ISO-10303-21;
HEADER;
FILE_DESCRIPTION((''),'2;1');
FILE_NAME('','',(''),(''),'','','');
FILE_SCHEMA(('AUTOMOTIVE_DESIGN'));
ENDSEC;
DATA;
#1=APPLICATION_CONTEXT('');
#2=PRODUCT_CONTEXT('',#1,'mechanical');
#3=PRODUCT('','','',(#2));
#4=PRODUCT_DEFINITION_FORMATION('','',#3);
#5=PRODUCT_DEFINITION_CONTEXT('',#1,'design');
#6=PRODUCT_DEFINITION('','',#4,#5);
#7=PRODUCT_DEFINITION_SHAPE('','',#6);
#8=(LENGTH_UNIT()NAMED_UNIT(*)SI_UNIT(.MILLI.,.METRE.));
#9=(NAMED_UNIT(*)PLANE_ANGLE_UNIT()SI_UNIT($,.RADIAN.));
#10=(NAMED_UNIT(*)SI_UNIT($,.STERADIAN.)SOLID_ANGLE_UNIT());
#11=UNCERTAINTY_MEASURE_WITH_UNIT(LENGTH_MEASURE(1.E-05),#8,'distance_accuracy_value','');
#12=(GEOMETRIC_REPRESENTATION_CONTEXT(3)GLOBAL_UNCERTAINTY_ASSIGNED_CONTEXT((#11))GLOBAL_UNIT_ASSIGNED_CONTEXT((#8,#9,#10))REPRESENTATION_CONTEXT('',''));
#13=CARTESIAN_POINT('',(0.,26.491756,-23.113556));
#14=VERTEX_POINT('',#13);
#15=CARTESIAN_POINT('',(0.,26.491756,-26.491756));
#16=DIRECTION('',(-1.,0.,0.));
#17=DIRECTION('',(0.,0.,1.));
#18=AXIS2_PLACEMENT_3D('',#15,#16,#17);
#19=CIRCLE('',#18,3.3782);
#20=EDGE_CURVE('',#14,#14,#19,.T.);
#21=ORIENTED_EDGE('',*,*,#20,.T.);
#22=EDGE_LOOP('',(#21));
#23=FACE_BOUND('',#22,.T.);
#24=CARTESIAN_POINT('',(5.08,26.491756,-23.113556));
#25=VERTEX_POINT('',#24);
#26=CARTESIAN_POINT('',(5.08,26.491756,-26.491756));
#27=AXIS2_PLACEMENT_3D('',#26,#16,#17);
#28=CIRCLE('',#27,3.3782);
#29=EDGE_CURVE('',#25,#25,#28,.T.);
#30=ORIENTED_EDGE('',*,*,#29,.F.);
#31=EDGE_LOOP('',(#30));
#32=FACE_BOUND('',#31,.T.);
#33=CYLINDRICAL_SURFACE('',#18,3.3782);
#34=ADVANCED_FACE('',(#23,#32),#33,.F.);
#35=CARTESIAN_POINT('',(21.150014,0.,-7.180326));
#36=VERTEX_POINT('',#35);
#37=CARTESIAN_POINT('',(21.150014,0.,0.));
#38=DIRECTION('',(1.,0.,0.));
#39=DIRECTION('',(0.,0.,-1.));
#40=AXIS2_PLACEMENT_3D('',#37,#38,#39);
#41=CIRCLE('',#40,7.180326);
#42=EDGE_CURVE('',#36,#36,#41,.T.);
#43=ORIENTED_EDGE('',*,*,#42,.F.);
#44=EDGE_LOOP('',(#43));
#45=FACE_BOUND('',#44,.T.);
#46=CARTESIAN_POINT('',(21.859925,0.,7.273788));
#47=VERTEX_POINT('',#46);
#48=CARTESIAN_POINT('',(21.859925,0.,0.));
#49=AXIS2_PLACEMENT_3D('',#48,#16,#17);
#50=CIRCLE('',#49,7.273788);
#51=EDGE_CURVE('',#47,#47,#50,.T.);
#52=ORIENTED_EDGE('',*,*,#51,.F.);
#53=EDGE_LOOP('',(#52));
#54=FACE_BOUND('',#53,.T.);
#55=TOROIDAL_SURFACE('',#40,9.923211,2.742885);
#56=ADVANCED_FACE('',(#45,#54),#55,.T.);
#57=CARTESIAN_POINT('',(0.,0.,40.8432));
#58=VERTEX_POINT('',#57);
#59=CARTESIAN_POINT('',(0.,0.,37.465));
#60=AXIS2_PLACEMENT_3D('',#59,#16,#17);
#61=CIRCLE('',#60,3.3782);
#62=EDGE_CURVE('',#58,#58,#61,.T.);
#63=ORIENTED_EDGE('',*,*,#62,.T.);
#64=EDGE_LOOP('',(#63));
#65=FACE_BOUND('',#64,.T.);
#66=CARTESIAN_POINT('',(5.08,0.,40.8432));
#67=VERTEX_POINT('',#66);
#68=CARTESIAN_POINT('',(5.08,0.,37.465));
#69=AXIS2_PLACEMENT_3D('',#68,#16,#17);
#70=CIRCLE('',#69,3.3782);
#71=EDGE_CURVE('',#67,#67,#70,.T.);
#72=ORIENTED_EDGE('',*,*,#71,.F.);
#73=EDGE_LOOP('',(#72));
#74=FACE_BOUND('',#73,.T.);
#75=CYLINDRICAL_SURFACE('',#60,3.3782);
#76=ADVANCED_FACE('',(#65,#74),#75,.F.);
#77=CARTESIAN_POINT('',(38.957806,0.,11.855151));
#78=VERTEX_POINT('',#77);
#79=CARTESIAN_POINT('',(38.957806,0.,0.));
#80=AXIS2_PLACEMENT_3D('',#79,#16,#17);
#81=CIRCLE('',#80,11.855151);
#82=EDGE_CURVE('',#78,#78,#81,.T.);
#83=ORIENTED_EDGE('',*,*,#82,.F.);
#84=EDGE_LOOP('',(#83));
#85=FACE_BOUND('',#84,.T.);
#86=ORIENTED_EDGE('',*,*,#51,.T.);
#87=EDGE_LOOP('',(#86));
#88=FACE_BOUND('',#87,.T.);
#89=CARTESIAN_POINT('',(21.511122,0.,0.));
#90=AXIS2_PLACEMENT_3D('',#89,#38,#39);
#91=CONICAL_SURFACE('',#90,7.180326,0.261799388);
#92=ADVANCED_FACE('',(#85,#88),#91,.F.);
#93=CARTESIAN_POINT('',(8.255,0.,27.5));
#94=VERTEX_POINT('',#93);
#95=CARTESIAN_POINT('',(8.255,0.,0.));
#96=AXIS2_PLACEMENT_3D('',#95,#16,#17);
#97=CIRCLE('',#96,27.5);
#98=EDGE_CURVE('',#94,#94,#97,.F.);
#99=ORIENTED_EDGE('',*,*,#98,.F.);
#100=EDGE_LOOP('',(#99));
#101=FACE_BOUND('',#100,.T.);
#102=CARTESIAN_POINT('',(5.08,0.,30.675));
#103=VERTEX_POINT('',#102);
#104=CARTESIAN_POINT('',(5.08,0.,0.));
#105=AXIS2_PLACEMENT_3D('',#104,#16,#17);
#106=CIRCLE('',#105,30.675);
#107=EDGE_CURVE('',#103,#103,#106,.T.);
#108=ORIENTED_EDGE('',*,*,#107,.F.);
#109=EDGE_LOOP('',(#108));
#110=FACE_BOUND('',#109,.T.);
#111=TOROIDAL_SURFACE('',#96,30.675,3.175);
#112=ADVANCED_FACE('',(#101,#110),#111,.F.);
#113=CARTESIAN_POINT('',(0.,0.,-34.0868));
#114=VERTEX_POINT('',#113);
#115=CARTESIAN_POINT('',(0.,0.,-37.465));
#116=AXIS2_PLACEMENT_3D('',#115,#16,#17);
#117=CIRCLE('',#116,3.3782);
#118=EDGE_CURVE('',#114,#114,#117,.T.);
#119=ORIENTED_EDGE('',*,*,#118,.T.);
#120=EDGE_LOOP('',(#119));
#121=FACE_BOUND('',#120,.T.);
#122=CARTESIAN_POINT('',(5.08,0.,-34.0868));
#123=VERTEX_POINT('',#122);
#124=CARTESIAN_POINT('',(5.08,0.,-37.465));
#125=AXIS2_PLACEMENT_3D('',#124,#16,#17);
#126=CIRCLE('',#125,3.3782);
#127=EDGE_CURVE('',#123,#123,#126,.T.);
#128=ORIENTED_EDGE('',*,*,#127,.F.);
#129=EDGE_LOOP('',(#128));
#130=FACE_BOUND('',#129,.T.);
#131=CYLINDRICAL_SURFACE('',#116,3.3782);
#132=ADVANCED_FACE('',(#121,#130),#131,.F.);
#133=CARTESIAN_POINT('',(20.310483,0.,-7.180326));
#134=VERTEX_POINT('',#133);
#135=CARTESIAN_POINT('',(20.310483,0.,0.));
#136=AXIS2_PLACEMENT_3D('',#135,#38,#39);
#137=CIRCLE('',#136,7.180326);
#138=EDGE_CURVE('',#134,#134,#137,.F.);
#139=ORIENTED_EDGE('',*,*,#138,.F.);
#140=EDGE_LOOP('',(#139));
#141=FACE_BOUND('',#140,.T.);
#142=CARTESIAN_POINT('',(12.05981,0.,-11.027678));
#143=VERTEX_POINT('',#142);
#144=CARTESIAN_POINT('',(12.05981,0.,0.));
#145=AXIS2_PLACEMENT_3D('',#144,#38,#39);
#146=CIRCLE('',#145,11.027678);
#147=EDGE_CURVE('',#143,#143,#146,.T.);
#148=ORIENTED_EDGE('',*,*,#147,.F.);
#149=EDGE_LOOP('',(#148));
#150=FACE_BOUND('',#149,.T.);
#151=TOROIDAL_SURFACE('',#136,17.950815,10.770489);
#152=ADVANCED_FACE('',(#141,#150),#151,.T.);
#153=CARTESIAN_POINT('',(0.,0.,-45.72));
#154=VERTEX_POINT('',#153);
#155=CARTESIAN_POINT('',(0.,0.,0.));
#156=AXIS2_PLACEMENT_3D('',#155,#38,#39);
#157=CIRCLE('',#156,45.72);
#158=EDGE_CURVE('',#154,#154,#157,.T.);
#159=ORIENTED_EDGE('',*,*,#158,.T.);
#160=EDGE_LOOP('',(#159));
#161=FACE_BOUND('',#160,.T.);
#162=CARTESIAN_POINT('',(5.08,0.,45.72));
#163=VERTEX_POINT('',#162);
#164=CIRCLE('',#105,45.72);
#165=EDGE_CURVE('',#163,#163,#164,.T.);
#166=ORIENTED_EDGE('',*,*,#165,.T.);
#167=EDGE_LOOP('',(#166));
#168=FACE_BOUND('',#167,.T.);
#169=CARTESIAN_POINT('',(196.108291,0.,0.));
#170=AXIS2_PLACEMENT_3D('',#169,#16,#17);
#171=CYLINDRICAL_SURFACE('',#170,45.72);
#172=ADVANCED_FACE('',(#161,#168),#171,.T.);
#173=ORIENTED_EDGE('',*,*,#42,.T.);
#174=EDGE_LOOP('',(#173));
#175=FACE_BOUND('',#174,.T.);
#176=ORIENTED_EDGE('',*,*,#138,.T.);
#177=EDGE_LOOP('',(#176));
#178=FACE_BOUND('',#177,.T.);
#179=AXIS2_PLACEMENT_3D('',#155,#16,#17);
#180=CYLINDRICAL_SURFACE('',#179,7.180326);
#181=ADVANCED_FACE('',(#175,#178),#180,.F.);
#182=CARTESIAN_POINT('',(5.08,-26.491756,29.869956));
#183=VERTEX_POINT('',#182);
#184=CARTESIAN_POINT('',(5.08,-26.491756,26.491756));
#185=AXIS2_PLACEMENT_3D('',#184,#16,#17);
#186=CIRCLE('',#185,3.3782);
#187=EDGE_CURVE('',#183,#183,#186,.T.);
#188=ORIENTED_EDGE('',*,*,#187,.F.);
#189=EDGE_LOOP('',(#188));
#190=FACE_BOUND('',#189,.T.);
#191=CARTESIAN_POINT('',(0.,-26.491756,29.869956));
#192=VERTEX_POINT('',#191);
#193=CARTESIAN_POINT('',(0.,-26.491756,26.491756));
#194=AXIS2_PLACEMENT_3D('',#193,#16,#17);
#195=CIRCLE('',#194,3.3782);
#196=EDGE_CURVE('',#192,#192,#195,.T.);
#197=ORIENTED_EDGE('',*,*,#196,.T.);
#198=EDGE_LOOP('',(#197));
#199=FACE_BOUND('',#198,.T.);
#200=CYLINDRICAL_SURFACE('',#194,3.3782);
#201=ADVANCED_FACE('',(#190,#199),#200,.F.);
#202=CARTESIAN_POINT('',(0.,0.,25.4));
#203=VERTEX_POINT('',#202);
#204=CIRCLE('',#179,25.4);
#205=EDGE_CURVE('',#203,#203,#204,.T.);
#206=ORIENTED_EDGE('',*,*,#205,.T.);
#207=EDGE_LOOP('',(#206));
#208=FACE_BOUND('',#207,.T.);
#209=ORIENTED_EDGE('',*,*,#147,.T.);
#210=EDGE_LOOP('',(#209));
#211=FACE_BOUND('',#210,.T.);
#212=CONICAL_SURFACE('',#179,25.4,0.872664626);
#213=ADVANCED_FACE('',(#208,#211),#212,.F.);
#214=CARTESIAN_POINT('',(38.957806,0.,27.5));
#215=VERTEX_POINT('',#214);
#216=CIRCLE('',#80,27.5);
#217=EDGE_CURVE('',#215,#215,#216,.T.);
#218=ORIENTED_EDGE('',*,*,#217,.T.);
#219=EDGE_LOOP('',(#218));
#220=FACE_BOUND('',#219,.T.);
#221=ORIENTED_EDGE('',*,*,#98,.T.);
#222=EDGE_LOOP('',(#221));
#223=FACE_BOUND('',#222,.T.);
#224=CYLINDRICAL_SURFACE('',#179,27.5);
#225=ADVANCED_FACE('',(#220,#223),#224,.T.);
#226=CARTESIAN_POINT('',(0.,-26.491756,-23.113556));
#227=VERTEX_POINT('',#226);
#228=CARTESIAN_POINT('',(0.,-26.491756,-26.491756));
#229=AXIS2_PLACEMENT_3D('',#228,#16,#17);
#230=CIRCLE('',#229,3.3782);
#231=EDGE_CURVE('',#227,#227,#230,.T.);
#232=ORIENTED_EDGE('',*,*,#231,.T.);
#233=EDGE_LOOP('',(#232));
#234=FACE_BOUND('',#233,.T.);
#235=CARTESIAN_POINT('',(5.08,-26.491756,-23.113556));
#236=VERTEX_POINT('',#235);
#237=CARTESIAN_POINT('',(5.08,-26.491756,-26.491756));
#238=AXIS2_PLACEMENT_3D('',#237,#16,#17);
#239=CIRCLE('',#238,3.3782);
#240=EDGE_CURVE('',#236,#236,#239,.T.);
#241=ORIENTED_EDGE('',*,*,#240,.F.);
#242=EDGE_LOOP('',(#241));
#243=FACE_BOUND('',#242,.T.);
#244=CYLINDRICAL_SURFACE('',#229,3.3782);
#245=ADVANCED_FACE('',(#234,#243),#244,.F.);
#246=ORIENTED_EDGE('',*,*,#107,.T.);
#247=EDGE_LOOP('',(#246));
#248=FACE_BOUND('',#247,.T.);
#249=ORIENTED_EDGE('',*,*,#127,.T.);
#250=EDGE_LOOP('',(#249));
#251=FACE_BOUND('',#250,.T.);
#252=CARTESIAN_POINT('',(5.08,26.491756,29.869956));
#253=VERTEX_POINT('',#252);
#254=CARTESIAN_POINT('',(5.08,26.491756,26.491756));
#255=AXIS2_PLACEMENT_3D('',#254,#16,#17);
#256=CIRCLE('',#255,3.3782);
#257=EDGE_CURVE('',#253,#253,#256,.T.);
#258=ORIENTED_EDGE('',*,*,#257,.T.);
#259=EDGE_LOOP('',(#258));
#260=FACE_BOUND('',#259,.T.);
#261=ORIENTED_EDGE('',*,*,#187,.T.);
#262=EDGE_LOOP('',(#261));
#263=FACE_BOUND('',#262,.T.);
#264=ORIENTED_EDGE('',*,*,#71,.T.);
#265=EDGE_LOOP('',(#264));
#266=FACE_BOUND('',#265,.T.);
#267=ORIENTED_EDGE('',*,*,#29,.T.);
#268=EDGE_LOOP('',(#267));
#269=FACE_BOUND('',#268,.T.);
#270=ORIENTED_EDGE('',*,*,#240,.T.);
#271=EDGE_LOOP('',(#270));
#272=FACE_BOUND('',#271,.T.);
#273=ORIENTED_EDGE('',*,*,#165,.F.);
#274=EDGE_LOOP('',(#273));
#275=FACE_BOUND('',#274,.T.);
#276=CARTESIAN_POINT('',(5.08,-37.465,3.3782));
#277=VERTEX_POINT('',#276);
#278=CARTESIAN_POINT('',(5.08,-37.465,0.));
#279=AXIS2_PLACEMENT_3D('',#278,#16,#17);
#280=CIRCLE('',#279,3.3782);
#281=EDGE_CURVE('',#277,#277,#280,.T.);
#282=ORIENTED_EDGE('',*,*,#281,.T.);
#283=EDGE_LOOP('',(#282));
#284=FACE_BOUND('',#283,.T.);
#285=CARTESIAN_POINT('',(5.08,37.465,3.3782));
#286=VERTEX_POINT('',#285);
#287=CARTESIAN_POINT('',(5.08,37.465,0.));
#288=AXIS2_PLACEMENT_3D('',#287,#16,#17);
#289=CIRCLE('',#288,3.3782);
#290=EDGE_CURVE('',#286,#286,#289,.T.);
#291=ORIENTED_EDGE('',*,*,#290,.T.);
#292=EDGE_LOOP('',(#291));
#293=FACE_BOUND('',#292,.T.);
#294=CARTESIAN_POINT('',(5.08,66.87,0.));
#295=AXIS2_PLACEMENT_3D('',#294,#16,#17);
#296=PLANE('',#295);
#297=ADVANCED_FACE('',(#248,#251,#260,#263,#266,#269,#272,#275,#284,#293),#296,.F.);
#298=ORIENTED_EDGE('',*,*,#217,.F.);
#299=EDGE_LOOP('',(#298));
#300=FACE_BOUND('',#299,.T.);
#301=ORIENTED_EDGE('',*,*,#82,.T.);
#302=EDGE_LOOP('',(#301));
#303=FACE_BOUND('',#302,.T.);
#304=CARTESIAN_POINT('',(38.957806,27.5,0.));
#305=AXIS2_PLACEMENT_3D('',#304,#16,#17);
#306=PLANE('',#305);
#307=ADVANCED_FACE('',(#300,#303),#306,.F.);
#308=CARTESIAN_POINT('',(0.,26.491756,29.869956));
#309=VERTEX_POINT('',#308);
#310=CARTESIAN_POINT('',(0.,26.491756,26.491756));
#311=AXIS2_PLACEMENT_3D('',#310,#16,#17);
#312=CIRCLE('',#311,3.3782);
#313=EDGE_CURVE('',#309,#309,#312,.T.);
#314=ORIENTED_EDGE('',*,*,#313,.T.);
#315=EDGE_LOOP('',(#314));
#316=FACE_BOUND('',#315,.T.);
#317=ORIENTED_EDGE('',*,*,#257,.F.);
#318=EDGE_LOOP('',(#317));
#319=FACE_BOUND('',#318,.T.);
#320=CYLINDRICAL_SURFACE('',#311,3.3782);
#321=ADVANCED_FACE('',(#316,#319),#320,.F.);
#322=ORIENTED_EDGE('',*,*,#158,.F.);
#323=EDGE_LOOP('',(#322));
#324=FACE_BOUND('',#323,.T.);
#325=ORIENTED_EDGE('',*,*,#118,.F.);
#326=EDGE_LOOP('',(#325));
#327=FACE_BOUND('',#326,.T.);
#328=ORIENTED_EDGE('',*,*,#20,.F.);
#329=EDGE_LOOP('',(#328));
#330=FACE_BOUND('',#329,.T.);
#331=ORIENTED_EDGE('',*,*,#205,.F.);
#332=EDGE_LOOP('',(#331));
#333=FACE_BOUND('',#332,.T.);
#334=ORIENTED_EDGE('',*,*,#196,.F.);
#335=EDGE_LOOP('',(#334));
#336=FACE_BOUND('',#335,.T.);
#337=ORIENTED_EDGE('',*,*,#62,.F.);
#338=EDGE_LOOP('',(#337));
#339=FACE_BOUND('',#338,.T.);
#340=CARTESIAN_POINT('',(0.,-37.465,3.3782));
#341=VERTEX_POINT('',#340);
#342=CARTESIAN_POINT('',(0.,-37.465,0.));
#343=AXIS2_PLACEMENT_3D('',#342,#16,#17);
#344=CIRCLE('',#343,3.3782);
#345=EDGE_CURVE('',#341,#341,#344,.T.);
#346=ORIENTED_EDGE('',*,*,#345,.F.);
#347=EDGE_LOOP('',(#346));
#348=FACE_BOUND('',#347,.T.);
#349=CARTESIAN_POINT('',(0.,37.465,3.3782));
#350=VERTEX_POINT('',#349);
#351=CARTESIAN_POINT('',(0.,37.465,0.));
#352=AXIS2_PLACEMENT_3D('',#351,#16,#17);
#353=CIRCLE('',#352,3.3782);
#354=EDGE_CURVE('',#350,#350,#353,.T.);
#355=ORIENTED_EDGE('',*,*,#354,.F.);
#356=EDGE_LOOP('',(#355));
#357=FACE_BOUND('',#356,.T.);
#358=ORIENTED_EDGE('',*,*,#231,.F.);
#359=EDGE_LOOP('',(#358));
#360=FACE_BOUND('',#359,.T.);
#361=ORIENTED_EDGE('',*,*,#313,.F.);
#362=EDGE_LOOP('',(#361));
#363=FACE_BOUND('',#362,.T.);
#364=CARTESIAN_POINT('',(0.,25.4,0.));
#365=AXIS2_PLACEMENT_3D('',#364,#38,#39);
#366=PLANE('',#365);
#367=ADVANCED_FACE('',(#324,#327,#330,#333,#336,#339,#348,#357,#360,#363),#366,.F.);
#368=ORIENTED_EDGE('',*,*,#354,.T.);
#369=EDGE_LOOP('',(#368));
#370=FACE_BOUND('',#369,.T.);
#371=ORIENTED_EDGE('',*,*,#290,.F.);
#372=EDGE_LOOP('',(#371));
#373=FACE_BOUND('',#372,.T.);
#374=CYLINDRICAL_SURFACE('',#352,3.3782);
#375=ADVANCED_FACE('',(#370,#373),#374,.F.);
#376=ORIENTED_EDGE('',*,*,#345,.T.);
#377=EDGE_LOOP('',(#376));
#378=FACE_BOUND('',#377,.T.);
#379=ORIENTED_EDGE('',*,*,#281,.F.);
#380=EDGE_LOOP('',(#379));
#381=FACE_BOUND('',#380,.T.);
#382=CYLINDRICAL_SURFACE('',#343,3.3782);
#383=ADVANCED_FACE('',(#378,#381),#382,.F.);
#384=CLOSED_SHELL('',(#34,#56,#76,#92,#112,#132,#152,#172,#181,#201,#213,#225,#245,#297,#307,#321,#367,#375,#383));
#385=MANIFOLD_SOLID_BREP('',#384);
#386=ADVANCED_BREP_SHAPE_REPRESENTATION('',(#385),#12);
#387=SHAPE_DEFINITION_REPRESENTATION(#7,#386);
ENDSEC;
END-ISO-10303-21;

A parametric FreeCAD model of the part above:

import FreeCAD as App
import Part
import Sketcher
Q = App.Units.Quantity


def edges_at(feature, points):
    """Names of the edges that pass closest to the given points."""
    edges = feature.Shape.Edges
    near = lambda p: min(range(len(edges)), key=lambda i: edges[i].distToShape(Part.Vertex(*p))[0])
    return sorted({f"Edge{near(p) + 1}" for p in points})

doc = App.newDocument("Part")
body = doc.addObject("PartDesign::Body", "Body")

# Sketch on XY plane
sketch1 = body.newObject("Sketcher::SketchObject", "Sketch")
sketch1.AttachmentSupport = (doc.getObject("XY_Plane"), [""])
sketch1.MapMode = "FlatFace"
sketch1.addGeometry(Part.LineSegment(App.Vector(15, 7, 0), App.Vector(22, 7, 0)), False)
sketch1.addGeometry(Part.LineSegment(App.Vector(22, 7, 0), App.Vector(39, 12, 0)), False)
sketch1.addGeometry(Part.LineSegment(App.Vector(39, 12, 0), App.Vector(39, 28, 0)), False)
sketch1.addGeometry(Part.LineSegment(App.Vector(39, 28, 0), App.Vector(5, 28, 0)), False)
sketch1.addGeometry(Part.LineSegment(App.Vector(5, 28, 0), App.Vector(5, 67, 0)), False)
sketch1.addGeometry(Part.LineSegment(App.Vector(5, 67, 0), App.Vector(0, 67, 0)), False)
sketch1.addGeometry(Part.LineSegment(App.Vector(0, 67, 0), App.Vector(0, 25, 0)), False)
sketch1.addGeometry(Part.LineSegment(App.Vector(0, 25, 0), App.Vector(15, 7, 0)), False)
sketch1.addConstraint(Sketcher.Constraint("Coincident", 0, 2, 1, 1))
sketch1.addConstraint(Sketcher.Constraint("Coincident", 1, 2, 2, 1))
sketch1.addConstraint(Sketcher.Constraint("Coincident", 2, 2, 3, 1))
sketch1.addConstraint(Sketcher.Constraint("Coincident", 3, 2, 4, 1))
sketch1.addConstraint(Sketcher.Constraint("Coincident", 4, 2, 5, 1))
sketch1.addConstraint(Sketcher.Constraint("Coincident", 5, 2, 6, 1))
sketch1.addConstraint(Sketcher.Constraint("Coincident", 6, 2, 7, 1))
sketch1.addConstraint(Sketcher.Constraint("Coincident", 7, 2, 0, 1))
sketch1.addConstraint(Sketcher.Constraint("Horizontal", 0))
sketch1.addConstraint(Sketcher.Constraint("Vertical", 2))
sketch1.addConstraint(Sketcher.Constraint("Horizontal", 3))
sketch1.addConstraint(Sketcher.Constraint("Vertical", 4))
sketch1.addConstraint(Sketcher.Constraint("Horizontal", 5))
sketch1.addConstraint(Sketcher.Constraint("Vertical", 6))
sketch1.addConstraint(Sketcher.Constraint("PointOnObject", 5, 2, -2))
sketch1.addConstraint(Sketcher.Constraint("DistanceX", 5, 2, 5, 1, Q("0.2 in")))
sketch1.addConstraint(Sketcher.Constraint("DistanceY", -1, 1, 6, 2, Q("1 in")))
sketch1.addConstraint(Sketcher.Constraint("Angle", 1, Q("15 deg")))
sketch1.addConstraint(Sketcher.Constraint("Angle", 7, Q("-50 deg")))
sketch1.addConstraint(Sketcher.Constraint("DistanceY", 4, 1, 4, 2, Q("1.55 in")))
sketch1.addConstraint(Sketcher.Constraint("DistanceX", 0, 1, 0, 2, Q("0.245 in")))
sketch1.addConstraint(Sketcher.Constraint("DistanceY", 6, 2, 6, 1, 41.47))
sketch1.addConstraint(Sketcher.Constraint("DistanceY", 2, 1, 2, 2, 15.644849))
sketch1.addConstraint(Sketcher.Constraint("DistanceX", 3, 2, 3, 1, 33.877806))
revolution = body.newObject("PartDesign::Revolution", "Revolution")
revolution.Profile = sketch1
revolution.ReferenceAxis = (sketch1, ["H_Axis"])
revolution.Angle = 360
doc.recompute()

fillet = body.newObject("PartDesign::Fillet", "Fillet")
fillet.Base = (revolution, edges_at(revolution, [(21.511, -7.18, 0)]))
fillet.Radius = 2.742885

# Sketch on YZ plane
sketch2 = body.newObject("Sketcher::SketchObject", "Sketch001")
sketch2.AttachmentSupport = (doc.getObject("YZ_Plane"), [""])
sketch2.MapMode = "FlatFace"
sketch2.addGeometry(Part.Circle(App.Vector(0, 37.5, 0), App.Vector(0, 0, 1), 3.4), False)
sketch2.addGeometry(Part.Circle(App.Vector(-26.5, 26.5, 0), App.Vector(0, 0, 1), 3.4), False)
sketch2.addGeometry(Part.Circle(App.Vector(-37.5, 0, 0), App.Vector(0, 0, 1), 3.4), False)
sketch2.addGeometry(Part.Circle(App.Vector(-26.5, -26.5, 0), App.Vector(0, 0, 1), 3.4), False)
sketch2.addGeometry(Part.Circle(App.Vector(0, -37.5, 0), App.Vector(0, 0, 1), 3.4), False)
sketch2.addGeometry(Part.Circle(App.Vector(26.5, -26.5, 0), App.Vector(0, 0, 1), 3.4), False)
sketch2.addGeometry(Part.Circle(App.Vector(37.5, 0, 0), App.Vector(0, 0, 1), 3.4), False)
sketch2.addGeometry(Part.Circle(App.Vector(26.5, 26.5, 0), App.Vector(0, 0, 1), 3.4), False)
sketch2.addGeometry(Part.Circle(App.Vector(0, 0, 0), App.Vector(0, 0, 1), 3.4), False)
sketch2.addConstraint(Sketcher.Constraint("Coincident", 8, 3, -1, 1))
sketch2.addConstraint(Sketcher.Constraint("Equal", 0, 1))
sketch2.addConstraint(Sketcher.Constraint("Equal", 1, 2))
sketch2.addConstraint(Sketcher.Constraint("Equal", 2, 3))
sketch2.addConstraint(Sketcher.Constraint("Equal", 3, 4))
sketch2.addConstraint(Sketcher.Constraint("Equal", 4, 5))
sketch2.addConstraint(Sketcher.Constraint("Equal", 5, 6))
sketch2.addConstraint(Sketcher.Constraint("Equal", 6, 7))
sketch2.addConstraint(Sketcher.Constraint("Equal", 7, 8))
sketch2.addConstraint(Sketcher.Constraint("Symmetric", 0, 3, 4, 3, -1, 1))
sketch2.addConstraint(Sketcher.Constraint("Symmetric", 1, 3, 5, 3, -1, 1))
sketch2.addConstraint(Sketcher.Constraint("Symmetric", 2, 3, 6, 3, -1, 1))
sketch2.addConstraint(Sketcher.Constraint("Symmetric", 3, 3, 7, 3, -1, 1))
sketch2.addConstraint(Sketcher.Constraint("Symmetric", 3, 3, 5, 3, -2))
sketch2.addConstraint(Sketcher.Constraint("PointOnObject", 0, 3, -2))
sketch2.addConstraint(Sketcher.Constraint("PointOnObject", 2, 3, -1))
sketch2.addConstraint(Sketcher.Constraint("Diameter", 0, Q("0.266 in")))
sketch2.addConstraint(Sketcher.Constraint("DistanceY", 4, 3, 0, 3, Q("2.95 in")))
sketch2.addConstraint(Sketcher.Constraint("DistanceX", 2, 3, -1, 1, Q("1.475 in")))
sketch2.addConstraint(Sketcher.Constraint("DistanceY", 3, 3, 1, 3, 52.983511))
sketch2.addConstraint(Sketcher.Constraint("DistanceX", 3, 3, 5, 3, 52.983511))
doc.recompute()
hole = body.newObject("PartDesign::Hole", "Hole")
hole.Profile = sketch2
hole.ThreadType = "None"
hole.Diameter = Q("0.266 in")
hole.DepthType = "ThroughAll"
hole.Reversed = True

# Sketch on YZ plane
sketch3 = body.newObject("Sketcher::SketchObject", "Sketch002")
sketch3.AttachmentSupport = (doc.getObject("YZ_Plane"), [""])
sketch3.MapMode = "FlatFace"
sketch3.addGeometry(Part.LineSegment(App.Vector(87, 87, 0), App.Vector(-87, 87, 0)), False)
sketch3.addGeometry(Part.LineSegment(App.Vector(-87, 87, 0), App.Vector(-87, -87, 0)), False)
sketch3.addGeometry(Part.LineSegment(App.Vector(-87, -87, 0), App.Vector(87, -87, 0)), False)
sketch3.addGeometry(Part.LineSegment(App.Vector(87, -87, 0), App.Vector(87, 87, 0)), False)
sketch3.addGeometry(Part.Circle(App.Vector(0, 0, 0), App.Vector(0, 0, 1), 46), False)
sketch3.addConstraint(Sketcher.Constraint("Coincident", 0, 2, 1, 1))
sketch3.addConstraint(Sketcher.Constraint("Coincident", 1, 2, 2, 1))
sketch3.addConstraint(Sketcher.Constraint("Coincident", 2, 2, 3, 1))
sketch3.addConstraint(Sketcher.Constraint("Coincident", 3, 2, 0, 1))
sketch3.addConstraint(Sketcher.Constraint("Horizontal", 0))
sketch3.addConstraint(Sketcher.Constraint("Vertical", 1))
sketch3.addConstraint(Sketcher.Constraint("Horizontal", 2))
sketch3.addConstraint(Sketcher.Constraint("Vertical", 3))
sketch3.addConstraint(Sketcher.Constraint("Coincident", 4, 3, -1, 1))
sketch3.addConstraint(Sketcher.Constraint("Symmetric", 0, 2, 2, 2, -1, 1))
sketch3.addConstraint(Sketcher.Constraint("Equal", 2, 1))
sketch3.addConstraint(Sketcher.Constraint("Diameter", 4, Q("3.6 in")))
sketch3.addConstraint(Sketcher.Constraint("DistanceX", 0, 2, 0, 1, 174.362))
pocket1 = body.newObject("PartDesign::Pocket", "Pocket")
pocket1.Profile = sketch3
pocket1.Length = Q("0.2 in")
pocket1.Reversed = True
doc.recompute()

fillet2 = body.newObject("PartDesign::Fillet", "Fillet001")
fillet2.Base = (pocket1, edges_at(pocket1, [(5.08, -27.5, 0)]))
fillet2.Radius = Q("0.125 in")
doc.recompute()

fillet3 = body.newObject("PartDesign::Fillet", "Fillet002")
fillet3.Base = (fillet2, edges_at(fillet2, [(15.288, -7.18, 0)]))
fillet3.Radius = 10.770489

doc.recompute()
